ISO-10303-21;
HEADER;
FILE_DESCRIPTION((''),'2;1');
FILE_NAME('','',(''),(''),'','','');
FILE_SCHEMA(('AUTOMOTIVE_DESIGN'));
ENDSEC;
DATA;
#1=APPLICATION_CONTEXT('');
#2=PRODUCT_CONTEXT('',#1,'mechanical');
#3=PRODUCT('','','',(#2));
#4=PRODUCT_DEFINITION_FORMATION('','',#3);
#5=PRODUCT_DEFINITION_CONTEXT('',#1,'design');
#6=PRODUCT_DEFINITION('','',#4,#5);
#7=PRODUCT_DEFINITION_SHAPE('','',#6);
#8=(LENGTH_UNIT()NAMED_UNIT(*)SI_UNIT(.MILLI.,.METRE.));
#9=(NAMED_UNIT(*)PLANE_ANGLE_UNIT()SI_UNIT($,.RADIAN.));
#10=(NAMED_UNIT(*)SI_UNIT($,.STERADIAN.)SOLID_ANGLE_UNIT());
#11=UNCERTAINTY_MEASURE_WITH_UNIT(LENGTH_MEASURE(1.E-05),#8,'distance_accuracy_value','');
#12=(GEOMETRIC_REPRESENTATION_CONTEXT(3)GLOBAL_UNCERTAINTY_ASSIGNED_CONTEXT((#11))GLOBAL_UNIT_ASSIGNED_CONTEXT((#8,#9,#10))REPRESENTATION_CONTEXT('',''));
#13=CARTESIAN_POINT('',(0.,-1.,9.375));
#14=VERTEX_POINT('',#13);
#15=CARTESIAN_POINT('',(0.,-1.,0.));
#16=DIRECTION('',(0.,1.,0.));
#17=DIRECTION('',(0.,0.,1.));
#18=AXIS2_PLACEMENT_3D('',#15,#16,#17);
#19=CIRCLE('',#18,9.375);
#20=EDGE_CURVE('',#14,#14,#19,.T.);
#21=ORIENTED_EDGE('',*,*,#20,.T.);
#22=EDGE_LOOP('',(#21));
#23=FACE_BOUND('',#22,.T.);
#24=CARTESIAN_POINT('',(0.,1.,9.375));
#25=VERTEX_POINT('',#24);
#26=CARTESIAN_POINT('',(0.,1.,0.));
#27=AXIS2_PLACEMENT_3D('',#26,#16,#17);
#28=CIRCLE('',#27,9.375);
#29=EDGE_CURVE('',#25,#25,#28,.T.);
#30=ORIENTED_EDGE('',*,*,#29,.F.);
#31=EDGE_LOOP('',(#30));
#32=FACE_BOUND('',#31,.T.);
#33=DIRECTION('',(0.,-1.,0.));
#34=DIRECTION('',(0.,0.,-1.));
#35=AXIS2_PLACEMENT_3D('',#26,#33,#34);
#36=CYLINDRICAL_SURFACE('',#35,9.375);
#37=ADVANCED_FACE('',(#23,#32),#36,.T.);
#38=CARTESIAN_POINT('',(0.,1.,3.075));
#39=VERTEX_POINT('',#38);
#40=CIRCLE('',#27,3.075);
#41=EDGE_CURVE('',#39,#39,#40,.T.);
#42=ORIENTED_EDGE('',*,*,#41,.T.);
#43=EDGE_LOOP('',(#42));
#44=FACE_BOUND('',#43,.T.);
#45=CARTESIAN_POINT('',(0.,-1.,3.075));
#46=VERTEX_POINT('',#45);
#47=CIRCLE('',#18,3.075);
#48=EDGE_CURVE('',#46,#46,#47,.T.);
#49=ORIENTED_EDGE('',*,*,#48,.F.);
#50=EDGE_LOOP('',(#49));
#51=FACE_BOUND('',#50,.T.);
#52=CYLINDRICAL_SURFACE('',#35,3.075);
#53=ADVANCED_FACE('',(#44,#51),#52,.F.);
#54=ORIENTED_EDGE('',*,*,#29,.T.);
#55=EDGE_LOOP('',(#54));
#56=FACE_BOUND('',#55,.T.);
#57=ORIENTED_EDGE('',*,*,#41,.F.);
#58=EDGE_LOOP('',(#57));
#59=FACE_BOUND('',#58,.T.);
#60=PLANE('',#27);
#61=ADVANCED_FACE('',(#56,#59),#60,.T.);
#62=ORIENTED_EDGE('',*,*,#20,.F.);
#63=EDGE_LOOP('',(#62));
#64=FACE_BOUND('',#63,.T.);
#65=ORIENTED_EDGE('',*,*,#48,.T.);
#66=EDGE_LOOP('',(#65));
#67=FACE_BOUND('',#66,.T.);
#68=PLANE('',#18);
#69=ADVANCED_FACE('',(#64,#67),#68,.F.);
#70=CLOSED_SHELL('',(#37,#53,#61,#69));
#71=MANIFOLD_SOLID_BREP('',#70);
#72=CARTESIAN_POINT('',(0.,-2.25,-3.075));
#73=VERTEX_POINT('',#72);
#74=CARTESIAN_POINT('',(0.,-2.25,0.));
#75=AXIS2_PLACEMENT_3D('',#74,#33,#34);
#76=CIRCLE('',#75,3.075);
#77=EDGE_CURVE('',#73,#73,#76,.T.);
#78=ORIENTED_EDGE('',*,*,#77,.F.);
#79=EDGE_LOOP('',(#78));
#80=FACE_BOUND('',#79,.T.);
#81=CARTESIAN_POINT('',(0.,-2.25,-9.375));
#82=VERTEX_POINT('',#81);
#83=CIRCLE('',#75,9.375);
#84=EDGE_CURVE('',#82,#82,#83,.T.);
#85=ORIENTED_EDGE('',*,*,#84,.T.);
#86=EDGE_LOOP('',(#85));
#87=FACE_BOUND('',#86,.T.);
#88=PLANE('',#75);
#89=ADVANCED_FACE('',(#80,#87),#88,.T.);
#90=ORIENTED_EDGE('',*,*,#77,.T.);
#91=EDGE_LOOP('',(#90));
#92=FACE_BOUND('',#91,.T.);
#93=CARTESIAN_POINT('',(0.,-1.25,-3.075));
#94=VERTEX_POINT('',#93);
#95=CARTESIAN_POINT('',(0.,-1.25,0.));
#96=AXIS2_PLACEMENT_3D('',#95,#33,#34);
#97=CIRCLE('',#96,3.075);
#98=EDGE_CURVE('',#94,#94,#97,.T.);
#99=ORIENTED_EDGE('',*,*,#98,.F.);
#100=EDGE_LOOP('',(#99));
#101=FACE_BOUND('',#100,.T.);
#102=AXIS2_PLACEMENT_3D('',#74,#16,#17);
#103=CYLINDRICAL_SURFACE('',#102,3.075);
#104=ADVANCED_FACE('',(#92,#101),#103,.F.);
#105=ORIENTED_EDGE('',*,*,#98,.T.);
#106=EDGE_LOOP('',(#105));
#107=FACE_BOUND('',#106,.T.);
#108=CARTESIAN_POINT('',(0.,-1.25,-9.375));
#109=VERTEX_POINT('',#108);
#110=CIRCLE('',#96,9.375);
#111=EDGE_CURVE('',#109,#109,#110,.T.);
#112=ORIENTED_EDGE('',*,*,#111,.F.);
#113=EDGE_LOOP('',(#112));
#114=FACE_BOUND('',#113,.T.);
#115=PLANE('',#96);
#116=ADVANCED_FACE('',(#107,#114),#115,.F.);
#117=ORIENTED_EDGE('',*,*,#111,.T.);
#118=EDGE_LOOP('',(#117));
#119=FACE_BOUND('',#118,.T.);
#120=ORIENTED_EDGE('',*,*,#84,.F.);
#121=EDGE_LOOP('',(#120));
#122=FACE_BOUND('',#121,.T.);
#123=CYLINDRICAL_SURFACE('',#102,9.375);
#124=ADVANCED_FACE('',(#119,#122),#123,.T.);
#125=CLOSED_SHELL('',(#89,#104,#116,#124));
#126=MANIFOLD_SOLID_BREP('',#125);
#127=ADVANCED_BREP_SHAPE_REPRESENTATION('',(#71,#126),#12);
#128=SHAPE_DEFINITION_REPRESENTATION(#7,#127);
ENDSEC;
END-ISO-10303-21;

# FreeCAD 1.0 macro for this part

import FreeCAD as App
import Part
import Sketcher
Q = App.Units.Quantity

doc = App.newDocument("Part")
body = doc.addObject("PartDesign::Body", "Body")

sketch1 = doc.addObject("Sketcher::SketchObject", "Sketch")
body.addObject(sketch1)
sketch1.AttachmentSupport = (doc.XZ_Plane, [""])
sketch1.MapMode = "FlatFace"
sketch1.addGeometry([
    Part.Circle(App.Vector(0, 0, 0), App.Vector(0, 0, 1), 9.4),
    Part.Circle(App.Vector(0, 0, 0), App.Vector(0, 0, 1), 3.1),
], False)
sketch1.addConstraint([
    Sketcher.Constraint("Coincident", 0, 3, -1, 1),
    Sketcher.Constraint("Coincident", 1, 3, -1, 1),
    Sketcher.Constraint("Diameter", 0, Q("18.75 mm")),
    Sketcher.Constraint("Diameter", 1, Q("6.15 mm")),
])
pad1 = doc.addObject("PartDesign::Pad", "Pad")
body.addObject(pad1)
pad1.Profile = sketch1
pad1.Length = 2
pad1.Midplane = True
body2 = doc.addObject("PartDesign::Body", "Body001")

sketch2 = doc.addObject("Sketcher::SketchObject", "Sketch001")
body2.addObject(sketch2)
sketch2.AttachmentSupport = (doc.getObject("XZ_Plane001"), [""])
sketch2.MapMode = "FlatFace"
sketch2.AttachmentOffset = App.Placement(App.Vector(0, 0, 1.25), App.Rotation())
sketch2.addGeometry([
    Part.Circle(App.Vector(0, 0, 0), App.Vector(0, 0, 1), 9.4),
    Part.Circle(App.Vector(0, 0, 0), App.Vector(0, 0, 1), 3.1),
], False)
sketch2.addConstraint([
    Sketcher.Constraint("Coincident", 0, 3, -1, 1),
    Sketcher.Constraint("Coincident", 1, 3, -1, 1),
    Sketcher.Constraint("Diameter", 0, Q("18.75 mm")),
    Sketcher.Constraint("Diameter", 1, Q("6.15 mm")),
])
pad2 = doc.addObject("PartDesign::Pad", "Pad001")
body2.addObject(pad2)
pad2.Profile = sketch2
pad2.Length = 1

doc.recompute()
